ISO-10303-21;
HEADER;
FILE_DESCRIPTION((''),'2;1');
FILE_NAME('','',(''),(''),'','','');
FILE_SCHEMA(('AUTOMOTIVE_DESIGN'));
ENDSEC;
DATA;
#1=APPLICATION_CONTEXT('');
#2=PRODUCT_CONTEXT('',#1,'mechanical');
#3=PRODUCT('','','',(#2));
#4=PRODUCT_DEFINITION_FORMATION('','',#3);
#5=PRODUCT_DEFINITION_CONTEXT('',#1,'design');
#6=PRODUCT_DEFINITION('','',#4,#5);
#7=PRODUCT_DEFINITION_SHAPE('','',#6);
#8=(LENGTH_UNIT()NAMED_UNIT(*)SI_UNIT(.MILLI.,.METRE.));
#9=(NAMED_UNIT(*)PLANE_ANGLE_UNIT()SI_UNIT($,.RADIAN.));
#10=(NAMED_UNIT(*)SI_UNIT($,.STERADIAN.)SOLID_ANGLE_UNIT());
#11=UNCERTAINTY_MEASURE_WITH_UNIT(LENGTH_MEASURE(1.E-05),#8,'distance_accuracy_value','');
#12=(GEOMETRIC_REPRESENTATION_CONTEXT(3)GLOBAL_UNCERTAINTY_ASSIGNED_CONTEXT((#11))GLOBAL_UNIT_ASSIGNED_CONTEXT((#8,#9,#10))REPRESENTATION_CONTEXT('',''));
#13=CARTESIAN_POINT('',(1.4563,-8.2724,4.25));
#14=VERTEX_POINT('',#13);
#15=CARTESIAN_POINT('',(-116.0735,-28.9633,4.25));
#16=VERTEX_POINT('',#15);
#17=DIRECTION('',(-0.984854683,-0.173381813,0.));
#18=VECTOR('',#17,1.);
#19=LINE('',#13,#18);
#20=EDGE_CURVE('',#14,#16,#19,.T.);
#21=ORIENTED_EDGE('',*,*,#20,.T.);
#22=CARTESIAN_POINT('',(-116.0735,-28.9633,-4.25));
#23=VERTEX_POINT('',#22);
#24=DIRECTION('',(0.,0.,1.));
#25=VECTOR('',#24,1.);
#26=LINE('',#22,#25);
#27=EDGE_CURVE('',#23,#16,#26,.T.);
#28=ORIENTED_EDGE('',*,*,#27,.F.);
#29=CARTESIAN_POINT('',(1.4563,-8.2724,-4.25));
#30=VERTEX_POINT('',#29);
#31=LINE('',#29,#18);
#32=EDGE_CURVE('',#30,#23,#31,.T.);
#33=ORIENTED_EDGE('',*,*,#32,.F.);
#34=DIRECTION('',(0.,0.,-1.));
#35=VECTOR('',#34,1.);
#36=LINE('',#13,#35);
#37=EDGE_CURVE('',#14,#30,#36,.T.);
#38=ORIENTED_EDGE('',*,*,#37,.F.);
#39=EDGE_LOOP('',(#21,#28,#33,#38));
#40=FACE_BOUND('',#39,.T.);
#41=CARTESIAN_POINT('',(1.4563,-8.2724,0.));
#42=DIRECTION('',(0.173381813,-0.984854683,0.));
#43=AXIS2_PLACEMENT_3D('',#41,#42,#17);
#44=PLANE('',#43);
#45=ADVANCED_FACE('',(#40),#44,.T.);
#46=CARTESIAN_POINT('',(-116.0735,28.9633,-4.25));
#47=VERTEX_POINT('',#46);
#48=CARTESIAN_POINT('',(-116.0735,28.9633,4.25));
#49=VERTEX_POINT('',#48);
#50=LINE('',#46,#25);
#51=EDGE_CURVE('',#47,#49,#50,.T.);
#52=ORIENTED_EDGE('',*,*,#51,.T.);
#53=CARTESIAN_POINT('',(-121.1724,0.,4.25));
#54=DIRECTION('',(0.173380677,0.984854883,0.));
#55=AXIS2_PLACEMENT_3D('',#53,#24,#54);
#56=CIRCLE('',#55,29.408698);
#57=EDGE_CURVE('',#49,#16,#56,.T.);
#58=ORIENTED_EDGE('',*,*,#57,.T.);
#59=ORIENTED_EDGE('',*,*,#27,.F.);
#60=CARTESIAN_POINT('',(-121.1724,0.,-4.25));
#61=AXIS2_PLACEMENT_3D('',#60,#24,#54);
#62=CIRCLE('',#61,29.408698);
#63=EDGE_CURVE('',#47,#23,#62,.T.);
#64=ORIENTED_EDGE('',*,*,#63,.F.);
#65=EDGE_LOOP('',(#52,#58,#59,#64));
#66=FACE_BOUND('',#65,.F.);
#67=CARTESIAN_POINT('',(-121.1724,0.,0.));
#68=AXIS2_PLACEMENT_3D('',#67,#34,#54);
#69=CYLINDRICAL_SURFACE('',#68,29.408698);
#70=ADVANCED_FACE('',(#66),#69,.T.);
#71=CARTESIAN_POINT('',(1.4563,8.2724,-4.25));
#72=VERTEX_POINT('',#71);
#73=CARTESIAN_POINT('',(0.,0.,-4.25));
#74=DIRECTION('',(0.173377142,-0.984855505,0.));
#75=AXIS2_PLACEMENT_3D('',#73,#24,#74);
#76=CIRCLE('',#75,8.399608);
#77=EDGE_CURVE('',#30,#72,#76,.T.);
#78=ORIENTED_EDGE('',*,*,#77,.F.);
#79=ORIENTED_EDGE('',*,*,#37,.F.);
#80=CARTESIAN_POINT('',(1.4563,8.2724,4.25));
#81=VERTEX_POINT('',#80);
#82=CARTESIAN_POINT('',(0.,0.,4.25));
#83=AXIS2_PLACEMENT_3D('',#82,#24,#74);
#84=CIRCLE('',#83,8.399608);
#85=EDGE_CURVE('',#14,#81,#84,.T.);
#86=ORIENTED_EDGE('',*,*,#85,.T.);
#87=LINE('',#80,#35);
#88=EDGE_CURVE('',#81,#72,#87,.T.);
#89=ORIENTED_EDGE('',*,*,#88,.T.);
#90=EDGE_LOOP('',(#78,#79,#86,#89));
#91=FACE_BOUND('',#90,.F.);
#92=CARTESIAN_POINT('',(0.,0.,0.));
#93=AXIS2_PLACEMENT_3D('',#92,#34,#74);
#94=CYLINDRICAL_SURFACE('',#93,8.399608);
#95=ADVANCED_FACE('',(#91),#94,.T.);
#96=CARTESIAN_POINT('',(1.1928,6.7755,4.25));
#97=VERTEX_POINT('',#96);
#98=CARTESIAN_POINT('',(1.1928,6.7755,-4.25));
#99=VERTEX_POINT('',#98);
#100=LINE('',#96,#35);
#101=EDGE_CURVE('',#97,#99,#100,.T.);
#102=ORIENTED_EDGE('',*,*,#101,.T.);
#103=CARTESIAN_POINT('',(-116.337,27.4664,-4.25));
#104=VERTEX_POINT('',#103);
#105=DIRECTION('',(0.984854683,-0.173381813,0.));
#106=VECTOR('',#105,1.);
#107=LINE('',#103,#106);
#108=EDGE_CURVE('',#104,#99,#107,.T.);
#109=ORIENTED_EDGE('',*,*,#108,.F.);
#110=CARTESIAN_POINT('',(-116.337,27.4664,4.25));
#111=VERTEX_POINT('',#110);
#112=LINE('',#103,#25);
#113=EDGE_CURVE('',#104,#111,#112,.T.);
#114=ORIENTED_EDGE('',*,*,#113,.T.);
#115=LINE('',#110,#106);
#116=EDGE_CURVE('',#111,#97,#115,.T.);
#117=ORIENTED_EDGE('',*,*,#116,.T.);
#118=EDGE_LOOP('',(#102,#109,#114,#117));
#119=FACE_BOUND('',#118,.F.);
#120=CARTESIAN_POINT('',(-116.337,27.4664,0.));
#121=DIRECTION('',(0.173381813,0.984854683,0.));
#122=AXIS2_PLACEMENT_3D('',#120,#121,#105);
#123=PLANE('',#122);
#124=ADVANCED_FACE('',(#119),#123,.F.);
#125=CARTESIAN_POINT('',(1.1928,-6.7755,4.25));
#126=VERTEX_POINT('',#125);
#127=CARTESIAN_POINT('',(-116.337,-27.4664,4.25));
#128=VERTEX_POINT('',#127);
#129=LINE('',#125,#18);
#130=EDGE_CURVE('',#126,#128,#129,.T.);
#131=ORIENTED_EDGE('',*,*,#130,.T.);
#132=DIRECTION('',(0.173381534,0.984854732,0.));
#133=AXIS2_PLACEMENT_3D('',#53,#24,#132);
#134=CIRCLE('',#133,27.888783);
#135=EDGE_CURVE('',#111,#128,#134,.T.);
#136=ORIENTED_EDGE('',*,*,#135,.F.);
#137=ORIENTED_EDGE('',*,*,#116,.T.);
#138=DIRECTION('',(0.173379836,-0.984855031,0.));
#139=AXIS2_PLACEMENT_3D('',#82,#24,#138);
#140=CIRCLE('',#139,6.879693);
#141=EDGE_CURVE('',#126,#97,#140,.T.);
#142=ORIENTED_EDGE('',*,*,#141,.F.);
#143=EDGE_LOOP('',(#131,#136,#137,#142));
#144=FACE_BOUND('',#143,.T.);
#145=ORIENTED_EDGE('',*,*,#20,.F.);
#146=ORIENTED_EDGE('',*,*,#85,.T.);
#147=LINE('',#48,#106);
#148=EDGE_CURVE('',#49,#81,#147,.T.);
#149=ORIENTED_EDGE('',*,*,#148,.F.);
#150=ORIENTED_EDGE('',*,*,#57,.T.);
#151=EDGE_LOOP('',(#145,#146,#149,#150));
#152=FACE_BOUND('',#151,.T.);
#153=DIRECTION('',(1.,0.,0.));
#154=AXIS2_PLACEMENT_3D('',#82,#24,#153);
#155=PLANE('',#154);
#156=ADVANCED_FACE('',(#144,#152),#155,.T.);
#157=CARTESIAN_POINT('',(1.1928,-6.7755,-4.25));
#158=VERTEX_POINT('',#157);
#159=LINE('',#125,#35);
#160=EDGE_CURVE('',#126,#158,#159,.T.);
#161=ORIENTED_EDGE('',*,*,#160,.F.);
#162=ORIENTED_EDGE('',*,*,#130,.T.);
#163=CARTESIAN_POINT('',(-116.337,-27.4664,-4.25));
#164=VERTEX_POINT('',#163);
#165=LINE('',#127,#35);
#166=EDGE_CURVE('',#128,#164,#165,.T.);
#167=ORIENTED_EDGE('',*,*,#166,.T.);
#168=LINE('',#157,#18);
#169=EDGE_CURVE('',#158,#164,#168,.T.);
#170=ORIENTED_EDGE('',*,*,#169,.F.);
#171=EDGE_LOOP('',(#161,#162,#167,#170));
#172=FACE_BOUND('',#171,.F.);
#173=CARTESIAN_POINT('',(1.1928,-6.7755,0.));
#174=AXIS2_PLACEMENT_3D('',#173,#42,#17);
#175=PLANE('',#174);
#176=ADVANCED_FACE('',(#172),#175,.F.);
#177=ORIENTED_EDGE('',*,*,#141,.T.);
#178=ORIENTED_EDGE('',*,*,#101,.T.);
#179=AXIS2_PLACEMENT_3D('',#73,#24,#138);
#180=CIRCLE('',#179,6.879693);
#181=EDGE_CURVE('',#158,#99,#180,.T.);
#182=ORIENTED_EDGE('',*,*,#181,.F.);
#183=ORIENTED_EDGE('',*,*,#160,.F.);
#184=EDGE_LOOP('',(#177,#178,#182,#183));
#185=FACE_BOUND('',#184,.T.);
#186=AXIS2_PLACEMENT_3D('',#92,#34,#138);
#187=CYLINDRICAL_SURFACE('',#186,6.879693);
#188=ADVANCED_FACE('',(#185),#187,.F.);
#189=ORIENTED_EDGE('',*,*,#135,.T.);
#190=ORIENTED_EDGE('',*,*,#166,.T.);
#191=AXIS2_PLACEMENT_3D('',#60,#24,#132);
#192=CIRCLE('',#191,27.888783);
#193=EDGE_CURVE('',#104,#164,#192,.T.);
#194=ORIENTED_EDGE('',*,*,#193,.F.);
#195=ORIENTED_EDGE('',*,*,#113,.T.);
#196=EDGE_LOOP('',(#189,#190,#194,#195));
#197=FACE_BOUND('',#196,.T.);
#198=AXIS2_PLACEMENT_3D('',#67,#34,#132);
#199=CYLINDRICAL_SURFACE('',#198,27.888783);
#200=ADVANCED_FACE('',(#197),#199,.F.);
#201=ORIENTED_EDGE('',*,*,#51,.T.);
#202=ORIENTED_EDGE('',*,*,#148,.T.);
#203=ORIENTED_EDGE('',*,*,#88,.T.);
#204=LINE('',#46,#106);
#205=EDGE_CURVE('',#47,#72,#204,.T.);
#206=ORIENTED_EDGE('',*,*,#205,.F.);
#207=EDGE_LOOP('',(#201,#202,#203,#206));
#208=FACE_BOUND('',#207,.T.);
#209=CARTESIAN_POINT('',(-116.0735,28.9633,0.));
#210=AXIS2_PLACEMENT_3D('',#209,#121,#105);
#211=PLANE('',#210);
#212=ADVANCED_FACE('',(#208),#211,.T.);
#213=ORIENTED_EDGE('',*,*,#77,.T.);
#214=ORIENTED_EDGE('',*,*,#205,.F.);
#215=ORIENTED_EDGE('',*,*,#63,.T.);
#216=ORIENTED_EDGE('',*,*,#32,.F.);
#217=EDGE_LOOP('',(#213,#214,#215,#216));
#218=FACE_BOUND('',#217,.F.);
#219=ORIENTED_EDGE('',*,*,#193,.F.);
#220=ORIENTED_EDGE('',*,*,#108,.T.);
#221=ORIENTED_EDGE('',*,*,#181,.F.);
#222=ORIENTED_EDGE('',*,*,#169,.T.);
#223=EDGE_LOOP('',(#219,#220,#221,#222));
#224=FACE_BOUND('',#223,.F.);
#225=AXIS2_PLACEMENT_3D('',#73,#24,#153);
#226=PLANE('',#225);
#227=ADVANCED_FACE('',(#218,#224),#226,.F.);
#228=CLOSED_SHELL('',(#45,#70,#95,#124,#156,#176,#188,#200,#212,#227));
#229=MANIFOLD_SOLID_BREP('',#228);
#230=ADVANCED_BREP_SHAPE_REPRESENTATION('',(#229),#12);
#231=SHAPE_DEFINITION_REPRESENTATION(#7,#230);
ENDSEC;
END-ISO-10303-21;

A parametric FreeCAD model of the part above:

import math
import FreeCAD as App
import Part
import Sketcher

V = App.Vector

doc = App.newDocument("Part")
body = doc.addObject("PartDesign::Body", "Body")

# Sketch on XY plane
sketch1 = body.newObject("Sketcher::SketchObject", "Sketch")
sketch1.AttachmentSupport = (doc.getObject("XY_Plane"), [""])
sketch1.MapMode = "FlatFace"
sketch1.addGeometry([
    Part.LineSegment(V(1.4563, 8.2724, 0), V(-116.0735, 28.9633, 0)),  # 0
    Part.ArcOfCircle(Part.Circle(V(-121.1724, 0, 0), V(0, 0, 1), 29.408698), math.radians(80.015563), math.radians(279.984437)),  # 1
    Part.LineSegment(V(-116.0735, -28.9633, 0), V(1.4563, -8.2724, 0)),  # 2
    Part.ArcOfCircle(Part.Circle(V(0, 0, 0), V(0, 0, 1), 8.399608), math.radians(-80.015768), math.radians(80.015768)),  # 3
    Part.ArcOfCircle(Part.Circle(V(-121.1724, 0, 0), V(0, 0, 1), 27.888783), math.radians(80.015513), math.radians(279.984487)),  # 4
    Part.LineSegment(V(-116.337, 27.4664, 0), V(1.1928, 6.7755, 0)),  # 5
    Part.ArcOfCircle(Part.Circle(V(0, 0, 0), V(0, 0, 1), 6.879693), math.radians(-80.015612), math.radians(80.015612)),  # 6
    Part.LineSegment(V(1.1928, -6.7755, 0), V(-116.337, -27.4664, 0)),  # 7
], False)
sketch1.addConstraint([
    Sketcher.Constraint("Tangent", 0, 2, 1, 1),
    Sketcher.Constraint("Tangent", 1, 2, 2, 1),
    Sketcher.Constraint("Tangent", 2, 2, 3, 1),
    Sketcher.Constraint("Tangent", 3, 2, 0, 1),
    Sketcher.Constraint("Tangent", 4, 1, 5, 1),
    Sketcher.Constraint("Tangent", 5, 2, 6, 2),
    Sketcher.Constraint("Tangent", 6, 1, 7, 1),
    Sketcher.Constraint("Tangent", 7, 2, 4, 2),
    Sketcher.Constraint("Coincident", 3, 3, -1, 1),
    Sketcher.Constraint("Coincident", 6, 3, -1, 1),
    Sketcher.Constraint("Coincident", 4, 3, 1, 3),
    Sketcher.Constraint("PointOnObject", 1, 3, -1),
    Sketcher.Constraint("Parallel", 0, 5),
    Sketcher.Constraint("Radius", 1, 29.4087),
    Sketcher.Constraint("Radius", 3, 8.3996),
    Sketcher.Constraint("Radius", 4, 27.8888),
    Sketcher.Constraint("DistanceX", 4, 1, -1, 1, 116.337),
])
pad1 = body.newObject("PartDesign::Pad", "Pad")
pad1.Profile = sketch1
pad1.Length = 8.5
pad1.Midplane = True

doc.recompute()
